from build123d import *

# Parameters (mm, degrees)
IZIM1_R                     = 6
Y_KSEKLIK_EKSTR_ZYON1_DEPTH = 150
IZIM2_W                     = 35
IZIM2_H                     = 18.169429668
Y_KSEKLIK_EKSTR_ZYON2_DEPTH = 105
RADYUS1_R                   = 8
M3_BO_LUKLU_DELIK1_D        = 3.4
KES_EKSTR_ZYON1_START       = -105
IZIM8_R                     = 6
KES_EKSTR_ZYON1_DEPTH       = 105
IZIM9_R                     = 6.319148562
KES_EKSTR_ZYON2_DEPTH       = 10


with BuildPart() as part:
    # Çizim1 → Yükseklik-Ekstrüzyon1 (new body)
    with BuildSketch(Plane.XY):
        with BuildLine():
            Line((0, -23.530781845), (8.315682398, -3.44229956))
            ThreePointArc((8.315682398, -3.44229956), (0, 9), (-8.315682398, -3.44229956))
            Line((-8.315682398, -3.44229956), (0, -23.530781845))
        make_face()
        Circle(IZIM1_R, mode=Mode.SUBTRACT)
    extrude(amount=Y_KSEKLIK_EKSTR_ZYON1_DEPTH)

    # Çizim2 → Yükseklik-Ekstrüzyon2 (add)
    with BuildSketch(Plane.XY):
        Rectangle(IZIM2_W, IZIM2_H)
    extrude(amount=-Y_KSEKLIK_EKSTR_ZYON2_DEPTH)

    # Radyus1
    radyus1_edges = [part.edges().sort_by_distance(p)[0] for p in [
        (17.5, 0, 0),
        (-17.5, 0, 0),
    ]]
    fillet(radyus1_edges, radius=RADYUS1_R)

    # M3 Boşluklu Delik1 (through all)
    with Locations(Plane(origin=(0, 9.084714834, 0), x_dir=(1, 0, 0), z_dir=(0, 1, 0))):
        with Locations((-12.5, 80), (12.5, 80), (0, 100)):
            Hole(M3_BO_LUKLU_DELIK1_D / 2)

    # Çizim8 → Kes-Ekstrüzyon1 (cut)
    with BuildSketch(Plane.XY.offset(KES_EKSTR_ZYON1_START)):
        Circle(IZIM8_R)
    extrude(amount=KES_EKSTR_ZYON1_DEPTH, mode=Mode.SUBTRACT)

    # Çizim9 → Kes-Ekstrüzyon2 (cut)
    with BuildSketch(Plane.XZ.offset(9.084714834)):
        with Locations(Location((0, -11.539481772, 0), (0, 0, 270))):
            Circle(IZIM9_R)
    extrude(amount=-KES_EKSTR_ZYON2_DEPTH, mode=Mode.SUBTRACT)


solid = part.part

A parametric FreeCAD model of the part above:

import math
import FreeCAD as App
import Part
import Sketcher
Q = App.Units.Quantity


def edges_at(feature, points):
    """Names of the edges that pass closest to the given points."""
    edges = feature.Shape.Edges
    near = lambda p: min(range(len(edges)), key=lambda i: edges[i].distToShape(Part.Vertex(*p))[0])
    return sorted({f"Edge{near(p) + 1}" for p in points})

doc = App.newDocument("Part")
body = doc.addObject("PartDesign::Body", "Body")

# Sketch on XY plane
sketch1 = body.newObject("Sketcher::SketchObject", "Sketch")
sketch1.AttachmentSupport = (doc.getObject("XY_Plane"), [""])
sketch1.MapMode = "FlatFace"
sketch1.addGeometry([
    Part.LineSegment(App.Vector(0, -24, 0), App.Vector(8, -3, 0)),
    Part.ArcOfCircle(Part.Circle(App.Vector(0, 0, 0), App.Vector(0, 0, 1), 9), math.radians(-22), math.radians(202)),
    Part.LineSegment(App.Vector(-8, -3, 0), App.Vector(0, -24, 0)),
    Part.Circle(App.Vector(0, 0, 0), App.Vector(0, 0, 1), 6),
], False)
sketch1.addConstraint([
    Sketcher.Constraint("Tangent", 0, 2, 1, 1),
    Sketcher.Constraint("Tangent", 1, 2, 2, 1),
    Sketcher.Constraint("Coincident", 2, 2, 0, 1),
    Sketcher.Constraint("Coincident", 1, 3, -1, 1),
    Sketcher.Constraint("Coincident", 3, 3, -1, 1),
    Sketcher.Constraint("PointOnObject", 2, 2, -2),
    Sketcher.Constraint("Diameter", 3, Q("12 mm")),
    Sketcher.Constraint("Radius", 1, Q("9 mm")),
    Sketcher.Constraint("DistanceY", 0, 2, -1, 1, Q("3.4423 mm")),
])
pad1 = body.newObject("PartDesign::Pad", "Pad")
pad1.Profile = sketch1
pad1.Length = 150

# Sketch on XY plane
sketch2 = body.newObject("Sketcher::SketchObject", "Sketch001")
sketch2.AttachmentSupport = (doc.getObject("XY_Plane"), [""])
sketch2.MapMode = "FlatFace"
sketch2.addGeometry([
    Part.LineSegment(App.Vector(-18, 9, 0), App.Vector(-18, -9, 0)),
    Part.LineSegment(App.Vector(-18, -9, 0), App.Vector(18, -9, 0)),
    Part.LineSegment(App.Vector(18, -9, 0), App.Vector(18, 9, 0)),
    Part.LineSegment(App.Vector(18, 9, 0), App.Vector(-18, 9, 0)),
], False)
sketch2.addConstraint([
    Sketcher.Constraint("Coincident", 0, 2, 1, 1),
    Sketcher.Constraint("Coincident", 1, 2, 2, 1),
    Sketcher.Constraint("Coincident", 2, 2, 3, 1),
    Sketcher.Constraint("Coincident", 3, 2, 0, 1),
    Sketcher.Constraint("Vertical", 0),
    Sketcher.Constraint("Horizontal", 1),
    Sketcher.Constraint("Vertical", 2),
    Sketcher.Constraint("Horizontal", 3),
    Sketcher.Constraint("Symmetric", 0, 2, 2, 2, -1, 1),
    Sketcher.Constraint("DistanceX", 1, 1, 1, 2, Q("35 mm")),
    Sketcher.Constraint("DistanceY", 0, 2, 0, 1, Q("18.16943 mm")),
])
pad2 = body.newObject("PartDesign::Pad", "Pad001")
pad2.Profile = sketch2
pad2.Length = 105
pad2.Reversed = True
doc.recompute()

fillet = body.newObject("PartDesign::Fillet", "Fillet")
fillet.Base = (pad2, edges_at(pad2, [(17.5, 0, 0), (-17.5, 0, 0)]))
fillet.Radius = 8

# Sketch on XZ plane
sketch3 = body.newObject("Sketcher::SketchObject", "Sketch002")
sketch3.AttachmentSupport = (doc.getObject("XZ_Plane"), [""])
sketch3.MapMode = "FlatFace"
sketch3.AttachmentOffset = App.Placement(App.Vector(0, 0, -9.084715), App.Rotation())
sketch3.addGeometry([
    Part.Circle(App.Vector(-12.5, -80, 0), App.Vector(0, 0, 1), 1.7),
    Part.Circle(App.Vector(12.5, -80, 0), App.Vector(0, 0, 1), 1.7),
    Part.Circle(App.Vector(0, -100, 0), App.Vector(0, 0, 1), 1.7),
], False)
sketch3.addConstraint([
    Sketcher.Constraint("Equal", 0, 1),
    Sketcher.Constraint("Equal", 1, 2),
    Sketcher.Constraint("Symmetric", 0, 3, 1, 3, -2),
    Sketcher.Constraint("PointOnObject", 2, 3, -2),
    Sketcher.Constraint("Diameter", 0, Q("3.4 mm")),
    Sketcher.Constraint("DistanceY", 0, 3, -1, 1, Q("80 mm")),
    Sketcher.Constraint("DistanceY", 2, 3, -1, 1, Q("100 mm")),
    Sketcher.Constraint("DistanceX", 0, 3, 1, 3, Q("25 mm")),
])
doc.recompute()
hole = body.newObject("PartDesign::Hole", "Hole")
hole.Profile = sketch3
hole.ThreadType = "None"
hole.Diameter = 3.4
hole.DepthType = "ThroughAll"
hole.Reversed = True

# Sketch on XY plane
sketch4 = body.newObject("Sketcher::SketchObject", "Sketch003")
sketch4.AttachmentSupport = (doc.getObject("XY_Plane"), [""])
sketch4.MapMode = "FlatFace"
sketch4.AttachmentOffset = App.Placement(App.Vector(0, 0, -105), App.Rotation())
sketch4.addGeometry(Part.Circle(App.Vector(0, 0, 0), App.Vector(0, 0, 1), 6), False)
sketch4.addConstraint([
    Sketcher.Constraint("Coincident", 0, 3, -1, 1),
    Sketcher.Constraint("Diameter", 0, Q("12 mm")),
])
pocket1 = body.newObject("PartDesign::Pocket", "Pocket")
pocket1.Profile = sketch4
pocket1.Length = 105
pocket1.Reversed = True

# Sketch on XZ plane
sketch5 = body.newObject("Sketcher::SketchObject", "Sketch004")
sketch5.AttachmentSupport = (doc.getObject("XZ_Plane"), [""])
sketch5.MapMode = "FlatFace"
sketch5.AttachmentOffset = App.Placement(App.Vector(0, 0, 9.084715), App.Rotation())
sketch5.addGeometry(Part.Circle(App.Vector(0, -12, 0), App.Vector(0, 0, 1), 6), False)
sketch5.addConstraint([
    Sketcher.Constraint("PointOnObject", 0, 3, -2),
    Sketcher.Constraint("Diameter", 0, Q("12.638297 mm")),
    Sketcher.Constraint("DistanceY", 0, 3, -1, 1, Q("11.539482 mm")),
])
pocket2 = body.newObject("PartDesign::Pocket", "Pocket001")
pocket2.Profile = sketch5
pocket2.Length = 10

doc.recompute()
